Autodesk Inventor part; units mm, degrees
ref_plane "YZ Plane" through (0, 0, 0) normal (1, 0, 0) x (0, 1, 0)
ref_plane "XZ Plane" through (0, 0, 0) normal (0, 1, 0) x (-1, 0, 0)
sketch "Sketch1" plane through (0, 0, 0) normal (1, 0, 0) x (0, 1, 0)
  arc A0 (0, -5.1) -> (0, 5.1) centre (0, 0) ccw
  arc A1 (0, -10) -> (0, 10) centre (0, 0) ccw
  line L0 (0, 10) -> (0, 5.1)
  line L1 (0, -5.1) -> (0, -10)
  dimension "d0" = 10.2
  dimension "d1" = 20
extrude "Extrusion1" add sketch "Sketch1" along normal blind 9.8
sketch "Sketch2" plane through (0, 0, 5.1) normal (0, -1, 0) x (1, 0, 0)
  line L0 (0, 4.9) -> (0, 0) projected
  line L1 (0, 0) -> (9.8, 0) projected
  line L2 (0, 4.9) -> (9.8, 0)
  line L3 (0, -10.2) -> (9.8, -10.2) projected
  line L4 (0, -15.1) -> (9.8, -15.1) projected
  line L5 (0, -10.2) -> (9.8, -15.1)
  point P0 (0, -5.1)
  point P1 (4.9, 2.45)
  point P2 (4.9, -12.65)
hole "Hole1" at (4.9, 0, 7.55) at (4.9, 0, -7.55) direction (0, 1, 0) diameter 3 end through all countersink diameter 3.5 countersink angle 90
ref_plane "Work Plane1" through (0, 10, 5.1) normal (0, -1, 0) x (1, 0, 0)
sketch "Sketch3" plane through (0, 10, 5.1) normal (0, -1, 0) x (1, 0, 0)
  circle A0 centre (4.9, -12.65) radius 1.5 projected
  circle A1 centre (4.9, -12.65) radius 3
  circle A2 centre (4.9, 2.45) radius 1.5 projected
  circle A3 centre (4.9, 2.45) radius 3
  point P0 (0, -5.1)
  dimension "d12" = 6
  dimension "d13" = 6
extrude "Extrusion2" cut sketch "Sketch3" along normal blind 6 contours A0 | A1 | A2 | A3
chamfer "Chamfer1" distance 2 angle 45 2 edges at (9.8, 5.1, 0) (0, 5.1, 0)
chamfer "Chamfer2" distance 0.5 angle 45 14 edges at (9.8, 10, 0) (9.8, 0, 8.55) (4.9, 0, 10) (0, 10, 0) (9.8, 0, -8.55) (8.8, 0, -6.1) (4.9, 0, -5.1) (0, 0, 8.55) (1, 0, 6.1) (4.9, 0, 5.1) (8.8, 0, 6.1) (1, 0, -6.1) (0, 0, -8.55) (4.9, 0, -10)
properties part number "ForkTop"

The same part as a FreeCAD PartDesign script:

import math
import FreeCAD as App
import Part
import Sketcher

V = App.Vector


def edges_at(feature, points):
    """Names of the edges that pass closest to the given points."""
    edges = feature.Shape.Edges
    near = lambda p: min(range(len(edges)), key=lambda i: edges[i].distToShape(Part.Vertex(*p))[0])
    return sorted({f"Edge{near(p) + 1}" for p in points})

doc = App.newDocument("Part")
body = doc.addObject("PartDesign::Body", "Body")

# Sketch on YZ plane
sketch1 = body.newObject("Sketcher::SketchObject", "Sketch")
sketch1.AttachmentSupport = (doc.getObject("YZ_Plane"), [""])
sketch1.MapMode = "FlatFace"
sketch1.addGeometry([
    Part.ArcOfCircle(Part.Circle(V(0, 0, 0), V(0, 0, 1), 5.1), math.radians(-90), math.radians(90)),
    Part.LineSegment(V(0, -5.1, 0), V(0, -10, 0)),
    Part.ArcOfCircle(Part.Circle(V(0, 0, 0), V(0, 0, 1), 10), math.radians(-90), math.radians(90)),
    Part.LineSegment(V(0, 10, 0), V(0, 5.1, 0)),
], False)
sketch1.addConstraint([
    Sketcher.Constraint("Coincident", 0, 1, 1, 1),
    Sketcher.Constraint("Coincident", 1, 2, 2, 1),
    Sketcher.Constraint("Coincident", 2, 2, 3, 1),
    Sketcher.Constraint("Coincident", 3, 2, 0, 2),
    Sketcher.Constraint("Vertical", 1),
    Sketcher.Constraint("Vertical", 3),
    Sketcher.Constraint("Coincident", 0, 3, -1, 1),
    Sketcher.Constraint("Coincident", 2, 3, -1, 1),
    Sketcher.Constraint("PointOnObject", 0, 1, -2),
    Sketcher.Constraint("PointOnObject", 2, 2, -2),
    Sketcher.Constraint("Radius", 2, 10.0),
    Sketcher.Constraint("Radius", 0, 5.1),
])
pad1 = body.newObject("PartDesign::Pad", "Pad")
pad1.Profile = sketch1
pad1.Length = 9.8

# Sketch on XZ plane
sketch2 = body.newObject("Sketcher::SketchObject", "Sketch001")
sketch2.AttachmentSupport = (doc.getObject("XZ_Plane"), [""])
sketch2.MapMode = "FlatFace"
sketch2.addGeometry([
    Part.Circle(V(4.9, 7.55, 0), V(0, 0, 1), 1.5),
    Part.Circle(V(4.9, -7.55, 0), V(0, 0, 1), 1.5),
], False)
sketch2.addConstraint([
    Sketcher.Constraint("Equal", 0, 1),
    Sketcher.Constraint("Symmetric", 0, 3, 1, 3, -1),
    Sketcher.Constraint("Diameter", 0, 3.0),
    Sketcher.Constraint("DistanceX", -1, 1, 0, 3, 4.9),
    Sketcher.Constraint("DistanceY", 1, 3, 0, 3, 15.1),
])
doc.recompute()
hole = body.newObject("PartDesign::Hole", "Hole")
hole.Profile = sketch2
hole.ThreadType = "None"
hole.Diameter = 3
hole.DepthType = "ThroughAll"
hole.HoleCutType = "Countersink"
hole.HoleCutDiameter = 3.5
hole.HoleCutCountersinkAngle = 90

# Sketch on XZ plane
sketch3 = body.newObject("Sketcher::SketchObject", "Sketch002")
sketch3.AttachmentSupport = (doc.getObject("XZ_Plane"), [""])
sketch3.MapMode = "FlatFace"
sketch3.AttachmentOffset = App.Placement(V(0, 0, -10), App.Rotation())
sketch3.addGeometry([
    Part.Circle(V(4.9, -7.55, 0), V(0, 0, 1), 3),
    Part.Circle(V(4.9, 7.55, 0), V(0, 0, 1), 3),
], False)
sketch3.addConstraint([
    Sketcher.Constraint("Equal", 0, 1),
    Sketcher.Constraint("Symmetric", 0, 3, 1, 3, -1),
    Sketcher.Constraint("Diameter", 0, 6.0),
    Sketcher.Constraint("DistanceX", -1, 1, 0, 3, 4.9),
    Sketcher.Constraint("DistanceY", 0, 3, 1, 3, 15.1),
])
pocket1 = body.newObject("PartDesign::Pocket", "Pocket")
pocket1.Profile = sketch3
pocket1.Length = 6
pocket1.Reversed = True
doc.recompute()

chamfer = body.newObject("PartDesign::Chamfer", "Chamfer")
chamfer.Base = (pocket1, edges_at(pocket1, [(9.8, 5.1, 0), (0, 5.1, 0)]))
chamfer.Size = 2
doc.recompute()

chamfer2 = body.newObject("PartDesign::Chamfer", "Chamfer001")
chamfer2.Base = (chamfer, edges_at(chamfer, [
    (9.8, 10, 0),
    (9.8, 0, 8.55),
    (4.9, 0, 10),
    (0, 10, 0),
    (9.8, 0, -8.55),
    (8.8, 0, -6.1),
    (4.9, 0, -5.1),
    (0, 0, 8.55),
    (1, 0, 6.1),
    (4.9, 0, 5.1),
    (8.8, 0, 6.1),
    (1, 0, -6.1),
    (0, 0, -8.55),
    (4.9, 0, -10),
]))
chamfer2.Size = 0.5

doc.recompute()
